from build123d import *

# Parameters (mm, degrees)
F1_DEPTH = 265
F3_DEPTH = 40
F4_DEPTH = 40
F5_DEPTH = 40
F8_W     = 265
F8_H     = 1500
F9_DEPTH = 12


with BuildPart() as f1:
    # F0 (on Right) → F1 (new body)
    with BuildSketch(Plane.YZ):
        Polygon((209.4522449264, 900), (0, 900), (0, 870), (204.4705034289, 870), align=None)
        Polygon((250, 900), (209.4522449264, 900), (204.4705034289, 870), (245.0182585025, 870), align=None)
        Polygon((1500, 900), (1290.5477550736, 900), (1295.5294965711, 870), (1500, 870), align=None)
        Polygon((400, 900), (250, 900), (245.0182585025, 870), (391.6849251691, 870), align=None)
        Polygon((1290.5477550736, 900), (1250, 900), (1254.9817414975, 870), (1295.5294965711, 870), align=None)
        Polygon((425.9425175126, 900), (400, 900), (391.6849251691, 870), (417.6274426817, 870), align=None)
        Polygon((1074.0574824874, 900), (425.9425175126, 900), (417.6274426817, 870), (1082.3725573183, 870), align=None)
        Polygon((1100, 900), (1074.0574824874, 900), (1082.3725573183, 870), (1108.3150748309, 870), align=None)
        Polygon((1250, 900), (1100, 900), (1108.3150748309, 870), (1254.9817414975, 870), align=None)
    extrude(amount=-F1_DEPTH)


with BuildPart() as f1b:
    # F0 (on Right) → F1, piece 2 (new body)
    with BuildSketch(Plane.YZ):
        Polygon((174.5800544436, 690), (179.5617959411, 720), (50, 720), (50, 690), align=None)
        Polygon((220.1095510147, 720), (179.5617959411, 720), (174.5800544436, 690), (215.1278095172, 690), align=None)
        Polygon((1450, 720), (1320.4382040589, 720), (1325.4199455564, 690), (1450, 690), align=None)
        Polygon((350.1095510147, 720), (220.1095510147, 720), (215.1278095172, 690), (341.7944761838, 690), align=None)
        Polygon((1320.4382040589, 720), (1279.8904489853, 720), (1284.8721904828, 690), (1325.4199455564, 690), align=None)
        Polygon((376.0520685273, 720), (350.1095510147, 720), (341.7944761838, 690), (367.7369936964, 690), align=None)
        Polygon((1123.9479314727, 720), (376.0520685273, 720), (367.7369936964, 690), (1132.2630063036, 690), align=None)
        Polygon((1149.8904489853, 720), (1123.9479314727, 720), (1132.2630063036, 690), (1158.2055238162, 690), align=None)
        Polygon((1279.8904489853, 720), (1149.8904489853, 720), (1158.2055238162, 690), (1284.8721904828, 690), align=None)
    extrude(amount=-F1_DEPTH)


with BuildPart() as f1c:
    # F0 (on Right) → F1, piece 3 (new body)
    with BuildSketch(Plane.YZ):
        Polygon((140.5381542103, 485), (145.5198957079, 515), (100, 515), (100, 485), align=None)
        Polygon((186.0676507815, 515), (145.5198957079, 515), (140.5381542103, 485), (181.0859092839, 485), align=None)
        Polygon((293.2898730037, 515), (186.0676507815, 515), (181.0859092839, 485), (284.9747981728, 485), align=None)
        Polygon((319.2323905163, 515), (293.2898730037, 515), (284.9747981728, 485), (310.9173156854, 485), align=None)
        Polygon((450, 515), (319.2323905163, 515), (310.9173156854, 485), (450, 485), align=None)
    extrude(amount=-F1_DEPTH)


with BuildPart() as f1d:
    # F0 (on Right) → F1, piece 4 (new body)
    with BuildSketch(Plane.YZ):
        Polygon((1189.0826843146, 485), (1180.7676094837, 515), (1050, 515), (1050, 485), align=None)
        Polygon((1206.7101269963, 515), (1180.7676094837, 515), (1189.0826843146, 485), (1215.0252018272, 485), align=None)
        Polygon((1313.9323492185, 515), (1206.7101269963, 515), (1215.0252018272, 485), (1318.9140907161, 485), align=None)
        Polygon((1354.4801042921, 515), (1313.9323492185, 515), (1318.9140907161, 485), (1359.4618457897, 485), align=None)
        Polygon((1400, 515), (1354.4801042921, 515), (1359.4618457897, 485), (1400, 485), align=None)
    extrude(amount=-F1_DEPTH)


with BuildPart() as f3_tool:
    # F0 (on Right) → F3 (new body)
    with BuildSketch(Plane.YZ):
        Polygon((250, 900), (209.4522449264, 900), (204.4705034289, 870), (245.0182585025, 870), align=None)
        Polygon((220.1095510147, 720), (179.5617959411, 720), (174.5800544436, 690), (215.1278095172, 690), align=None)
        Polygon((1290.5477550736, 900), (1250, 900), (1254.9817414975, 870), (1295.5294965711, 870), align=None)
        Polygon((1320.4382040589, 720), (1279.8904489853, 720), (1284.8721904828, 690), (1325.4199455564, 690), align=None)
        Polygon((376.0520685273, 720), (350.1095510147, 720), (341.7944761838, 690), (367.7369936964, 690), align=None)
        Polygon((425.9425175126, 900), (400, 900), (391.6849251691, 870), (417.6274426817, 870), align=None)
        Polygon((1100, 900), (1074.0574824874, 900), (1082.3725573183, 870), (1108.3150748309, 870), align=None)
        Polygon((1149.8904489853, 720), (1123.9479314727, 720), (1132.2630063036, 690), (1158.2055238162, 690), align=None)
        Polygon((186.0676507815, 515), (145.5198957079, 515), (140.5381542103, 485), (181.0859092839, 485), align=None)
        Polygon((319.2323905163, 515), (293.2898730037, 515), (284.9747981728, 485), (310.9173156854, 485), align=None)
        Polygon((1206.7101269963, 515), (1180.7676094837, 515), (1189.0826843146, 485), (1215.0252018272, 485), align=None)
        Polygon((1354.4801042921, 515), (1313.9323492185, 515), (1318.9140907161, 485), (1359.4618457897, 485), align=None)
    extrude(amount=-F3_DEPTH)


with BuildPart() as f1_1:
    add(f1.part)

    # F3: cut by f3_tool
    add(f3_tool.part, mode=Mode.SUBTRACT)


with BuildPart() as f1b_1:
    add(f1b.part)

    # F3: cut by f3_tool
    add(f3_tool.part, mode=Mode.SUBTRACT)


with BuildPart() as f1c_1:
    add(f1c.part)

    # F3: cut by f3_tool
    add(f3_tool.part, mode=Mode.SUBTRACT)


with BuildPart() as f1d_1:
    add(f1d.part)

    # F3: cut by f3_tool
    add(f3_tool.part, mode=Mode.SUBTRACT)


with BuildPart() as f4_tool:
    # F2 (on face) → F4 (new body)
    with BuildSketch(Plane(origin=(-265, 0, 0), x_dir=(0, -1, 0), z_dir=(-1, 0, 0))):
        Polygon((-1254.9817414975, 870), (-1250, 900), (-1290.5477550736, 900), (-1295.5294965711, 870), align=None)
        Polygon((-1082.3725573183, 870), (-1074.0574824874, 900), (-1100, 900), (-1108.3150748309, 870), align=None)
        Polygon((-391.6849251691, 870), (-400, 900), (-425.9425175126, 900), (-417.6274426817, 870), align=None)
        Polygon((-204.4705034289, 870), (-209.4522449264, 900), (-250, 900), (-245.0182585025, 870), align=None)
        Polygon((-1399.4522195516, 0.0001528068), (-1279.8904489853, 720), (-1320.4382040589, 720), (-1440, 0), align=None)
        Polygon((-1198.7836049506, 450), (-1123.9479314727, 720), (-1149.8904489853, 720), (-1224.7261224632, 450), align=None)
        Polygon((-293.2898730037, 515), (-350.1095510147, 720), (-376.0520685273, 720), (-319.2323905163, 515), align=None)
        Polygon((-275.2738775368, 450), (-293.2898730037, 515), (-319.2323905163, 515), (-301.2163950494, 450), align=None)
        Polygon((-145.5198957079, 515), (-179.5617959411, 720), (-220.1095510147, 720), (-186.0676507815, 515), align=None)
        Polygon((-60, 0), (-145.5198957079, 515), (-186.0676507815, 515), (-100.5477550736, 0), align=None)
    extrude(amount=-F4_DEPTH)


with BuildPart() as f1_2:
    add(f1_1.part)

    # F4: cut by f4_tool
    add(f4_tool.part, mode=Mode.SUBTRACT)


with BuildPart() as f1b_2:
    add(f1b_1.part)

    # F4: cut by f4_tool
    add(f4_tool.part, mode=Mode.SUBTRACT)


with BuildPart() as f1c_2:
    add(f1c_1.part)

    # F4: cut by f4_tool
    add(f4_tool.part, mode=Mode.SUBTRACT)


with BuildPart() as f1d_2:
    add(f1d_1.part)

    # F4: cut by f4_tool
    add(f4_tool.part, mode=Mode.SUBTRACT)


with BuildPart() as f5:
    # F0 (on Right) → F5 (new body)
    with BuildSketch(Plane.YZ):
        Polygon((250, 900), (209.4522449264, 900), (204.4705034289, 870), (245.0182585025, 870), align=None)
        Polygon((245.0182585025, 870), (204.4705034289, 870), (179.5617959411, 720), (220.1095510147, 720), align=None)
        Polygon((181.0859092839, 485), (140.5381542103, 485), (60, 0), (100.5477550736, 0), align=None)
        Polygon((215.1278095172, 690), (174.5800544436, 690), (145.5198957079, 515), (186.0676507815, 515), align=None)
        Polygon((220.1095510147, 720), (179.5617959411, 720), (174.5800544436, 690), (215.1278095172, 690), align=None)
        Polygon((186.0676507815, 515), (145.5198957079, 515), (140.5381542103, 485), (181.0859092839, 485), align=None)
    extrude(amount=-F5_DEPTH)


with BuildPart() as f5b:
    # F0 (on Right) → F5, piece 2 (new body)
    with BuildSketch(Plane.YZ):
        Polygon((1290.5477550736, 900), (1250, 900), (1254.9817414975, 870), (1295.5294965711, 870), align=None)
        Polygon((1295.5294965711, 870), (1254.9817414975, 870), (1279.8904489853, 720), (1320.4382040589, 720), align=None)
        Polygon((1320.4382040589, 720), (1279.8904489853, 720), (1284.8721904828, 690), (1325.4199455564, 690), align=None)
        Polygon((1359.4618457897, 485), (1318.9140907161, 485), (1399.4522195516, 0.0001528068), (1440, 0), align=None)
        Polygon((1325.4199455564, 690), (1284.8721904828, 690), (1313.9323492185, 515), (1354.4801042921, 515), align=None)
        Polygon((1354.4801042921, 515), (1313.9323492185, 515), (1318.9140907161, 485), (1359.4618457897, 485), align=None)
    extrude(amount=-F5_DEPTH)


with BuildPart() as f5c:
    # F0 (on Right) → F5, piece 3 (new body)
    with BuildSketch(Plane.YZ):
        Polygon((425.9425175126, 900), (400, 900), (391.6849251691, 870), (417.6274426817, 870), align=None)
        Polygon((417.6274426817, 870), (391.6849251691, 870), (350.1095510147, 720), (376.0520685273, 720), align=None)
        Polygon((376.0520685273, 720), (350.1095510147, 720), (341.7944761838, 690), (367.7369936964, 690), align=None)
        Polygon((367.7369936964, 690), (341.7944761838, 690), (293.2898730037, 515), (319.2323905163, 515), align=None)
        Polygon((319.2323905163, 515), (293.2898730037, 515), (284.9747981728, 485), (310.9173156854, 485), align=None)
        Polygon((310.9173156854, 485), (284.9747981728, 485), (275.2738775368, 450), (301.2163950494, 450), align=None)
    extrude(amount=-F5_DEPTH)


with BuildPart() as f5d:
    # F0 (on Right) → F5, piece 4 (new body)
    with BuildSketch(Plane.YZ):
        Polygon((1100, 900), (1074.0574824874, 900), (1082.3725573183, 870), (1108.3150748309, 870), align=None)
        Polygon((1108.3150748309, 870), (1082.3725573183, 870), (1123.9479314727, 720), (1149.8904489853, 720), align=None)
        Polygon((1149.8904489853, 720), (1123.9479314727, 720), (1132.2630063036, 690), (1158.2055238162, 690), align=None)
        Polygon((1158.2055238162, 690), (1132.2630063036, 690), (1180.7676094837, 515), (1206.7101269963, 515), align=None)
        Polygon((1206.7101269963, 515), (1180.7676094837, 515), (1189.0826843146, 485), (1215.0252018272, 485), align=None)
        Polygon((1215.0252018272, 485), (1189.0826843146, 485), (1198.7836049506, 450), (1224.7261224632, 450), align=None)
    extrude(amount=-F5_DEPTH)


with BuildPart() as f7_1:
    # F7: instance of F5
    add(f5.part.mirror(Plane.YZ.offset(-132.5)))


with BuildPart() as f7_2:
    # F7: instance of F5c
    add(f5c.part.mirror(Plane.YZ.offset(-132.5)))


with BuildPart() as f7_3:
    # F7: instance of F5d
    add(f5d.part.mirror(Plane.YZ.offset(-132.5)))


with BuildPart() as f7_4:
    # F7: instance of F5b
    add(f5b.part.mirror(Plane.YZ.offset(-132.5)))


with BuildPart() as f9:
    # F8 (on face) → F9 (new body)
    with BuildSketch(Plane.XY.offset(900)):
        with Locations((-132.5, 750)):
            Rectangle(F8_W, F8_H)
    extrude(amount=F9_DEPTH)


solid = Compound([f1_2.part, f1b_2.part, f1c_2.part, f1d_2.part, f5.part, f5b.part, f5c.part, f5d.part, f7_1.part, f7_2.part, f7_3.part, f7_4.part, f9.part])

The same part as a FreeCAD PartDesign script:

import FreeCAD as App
import Part
import Sketcher
Q = App.Units.Quantity

doc = App.newDocument("Part")
params = doc.addObject("Spreadsheet::Sheet", "Params")
for row, (alias, value) in enumerate([
    ("sketch1_width", "1500 mm"),
    ("sketch1_height", "30 mm"),
    ("pad1_length", "265 mm"),
    ("sketch2_width", "1400 mm"),
    ("sketch2_height", "30 mm"),
    ("pad2_length", "265 mm"),
    ("sketch3_width", "350 mm"),
    ("sketch3_height", "30 mm"),
    ("pad3_length", "265 mm"),
    ("sketch4_width", "350 mm"),
    ("sketch4_height", "30 mm"),
    ("pad4_length", "265 mm"),
    ("pad5_length", "40 mm"),
    ("pad6_length", "40 mm"),
    ("pad7_length", "40 mm"),
    ("pad8_length", "40 mm"),
    ("pad9_length", "40 mm"),
    ("pad10_length", "40 mm"),
    ("sketch11_width", "265 mm"),
    ("sketch11_height", "1500 mm"),
    ("pad11_length", "12 mm"),
], start=1):
    params.set(f"A{row}", alias)
    params.set(f"B{row}", "=" + value)
    params.setAlias(f"B{row}", alias)

body = doc.addObject("PartDesign::Body", "Body")

sketch1 = doc.addObject("Sketcher::SketchObject", "Sketch")
body.addObject(sketch1)
sketch1.AttachmentSupport = (doc.YZ_Plane, [""])
sketch1.MapMode = "FlatFace"
sketch1.addGeometry([
    Part.LineSegment(App.Vector(0, 900, 0), App.Vector(0, 870, 0)),
    Part.LineSegment(App.Vector(0, 870, 0), App.Vector(1500, 870, 0)),
    Part.LineSegment(App.Vector(1500, 870, 0), App.Vector(1500, 900, 0)),
    Part.LineSegment(App.Vector(1500, 900, 0), App.Vector(0, 900, 0)),
], False)
sketch1.addConstraint([
    Sketcher.Constraint("Coincident", 0, 2, 1, 1),
    Sketcher.Constraint("Coincident", 1, 2, 2, 1),
    Sketcher.Constraint("Coincident", 2, 2, 3, 1),
    Sketcher.Constraint("Coincident", 3, 2, 0, 1),
    Sketcher.Constraint("Vertical", 0),
    Sketcher.Constraint("Horizontal", 1),
    Sketcher.Constraint("Vertical", 2),
    Sketcher.Constraint("Horizontal", 3),
    Sketcher.Constraint("PointOnObject", 0, 2, -2),
    Sketcher.Constraint("DistanceX", 1, 1, 1, 2, Q("1500 mm")),
    Sketcher.Constraint("DistanceY", 0, 2, 0, 1, Q("30 mm")),
    Sketcher.Constraint("DistanceY", -1, 1, 0, 2, Q("870 mm")),
])
sketch1.setExpression("Constraints[9]", "Params.sketch1_width")
sketch1.setExpression("Constraints[10]", "Params.sketch1_height")
pad1 = doc.addObject("PartDesign::Pad", "Pad")
body.addObject(pad1)
pad1.Profile = sketch1
pad1.setExpression("Length", "Params.pad1_length")
pad1.Reversed = True
body2 = doc.addObject("PartDesign::Body", "Body001")

sketch2 = doc.addObject("Sketcher::SketchObject", "Sketch001")
body2.addObject(sketch2)
sketch2.AttachmentSupport = (doc.getObject("YZ_Plane001"), [""])
sketch2.MapMode = "FlatFace"
sketch2.addGeometry([
    Part.LineSegment(App.Vector(50, 720, 0), App.Vector(50, 690, 0)),
    Part.LineSegment(App.Vector(50, 690, 0), App.Vector(1450, 690, 0)),
    Part.LineSegment(App.Vector(1450, 690, 0), App.Vector(1450, 720, 0)),
    Part.LineSegment(App.Vector(1450, 720, 0), App.Vector(50, 720, 0)),
], False)
sketch2.addConstraint([
    Sketcher.Constraint("Coincident", 0, 2, 1, 1),
    Sketcher.Constraint("Coincident", 1, 2, 2, 1),
    Sketcher.Constraint("Coincident", 2, 2, 3, 1),
    Sketcher.Constraint("Coincident", 3, 2, 0, 1),
    Sketcher.Constraint("Vertical", 0),
    Sketcher.Constraint("Horizontal", 1),
    Sketcher.Constraint("Vertical", 2),
    Sketcher.Constraint("Horizontal", 3),
    Sketcher.Constraint("DistanceX", 1, 1, 1, 2, Q("1400 mm")),
    Sketcher.Constraint("DistanceY", 0, 2, 0, 1, Q("30 mm")),
    Sketcher.Constraint("DistanceX", -1, 1, 0, 2, Q("50 mm")),
    Sketcher.Constraint("DistanceY", -1, 1, 0, 2, Q("690 mm")),
])
sketch2.setExpression("Constraints[8]", "Params.sketch2_width")
sketch2.setExpression("Constraints[9]", "Params.sketch2_height")
pad2 = doc.addObject("PartDesign::Pad", "Pad001")
body2.addObject(pad2)
pad2.Profile = sketch2
pad2.setExpression("Length", "Params.pad2_length")
pad2.Reversed = True
body3 = doc.addObject("PartDesign::Body", "Body002")

sketch3 = doc.addObject("Sketcher::SketchObject", "Sketch002")
body3.addObject(sketch3)
sketch3.AttachmentSupport = (doc.getObject("YZ_Plane002"), [""])
sketch3.MapMode = "FlatFace"
sketch3.addGeometry([
    Part.LineSegment(App.Vector(100, 515, 0), App.Vector(100, 485, 0)),
    Part.LineSegment(App.Vector(100, 485, 0), App.Vector(450, 485, 0)),
    Part.LineSegment(App.Vector(450, 485, 0), App.Vector(450, 515, 0)),
    Part.LineSegment(App.Vector(450, 515, 0), App.Vector(100, 515, 0)),
], False)
sketch3.addConstraint([
    Sketcher.Constraint("Coincident", 0, 2, 1, 1),
    Sketcher.Constraint("Coincident", 1, 2, 2, 1),
    Sketcher.Constraint("Coincident", 2, 2, 3, 1),
    Sketcher.Constraint("Coincident", 3, 2, 0, 1),
    Sketcher.Constraint("Vertical", 0),
    Sketcher.Constraint("Horizontal", 1),
    Sketcher.Constraint("Vertical", 2),
    Sketcher.Constraint("Horizontal", 3),
    Sketcher.Constraint("DistanceX", 1, 1, 1, 2, Q("350 mm")),
    Sketcher.Constraint("DistanceY", 0, 2, 0, 1, Q("30 mm")),
    Sketcher.Constraint("DistanceX", -1, 1, 0, 2, Q("100 mm")),
    Sketcher.Constraint("DistanceY", -1, 1, 0, 2, Q("485 mm")),
])
sketch3.setExpression("Constraints[8]", "Params.sketch3_width")
sketch3.setExpression("Constraints[9]", "Params.sketch3_height")
pad3 = doc.addObject("PartDesign::Pad", "Pad002")
body3.addObject(pad3)
pad3.Profile = sketch3
pad3.setExpression("Length", "Params.pad3_length")
pad3.Reversed = True
body4 = doc.addObject("PartDesign::Body", "Body003")

sketch4 = doc.addObject("Sketcher::SketchObject", "Sketch003")
body4.addObject(sketch4)
sketch4.AttachmentSupport = (doc.getObject("YZ_Plane003"), [""])
sketch4.MapMode = "FlatFace"
sketch4.addGeometry([
    Part.LineSegment(App.Vector(1050, 515, 0), App.Vector(1050, 485, 0)),
    Part.LineSegment(App.Vector(1050, 485, 0), App.Vector(1400, 485, 0)),
    Part.LineSegment(App.Vector(1400, 485, 0), App.Vector(1400, 515, 0)),
    Part.LineSegment(App.Vector(1400, 515, 0), App.Vector(1050, 515, 0)),
], False)
sketch4.addConstraint([
    Sketcher.Constraint("Coincident", 0, 2, 1, 1),
    Sketcher.Constraint("Coincident", 1, 2, 2, 1),
    Sketcher.Constraint("Coincident", 2, 2, 3, 1),
    Sketcher.Constraint("Coincident", 3, 2, 0, 1),
    Sketcher.Constraint("Vertical", 0),
    Sketcher.Constraint("Horizontal", 1),
    Sketcher.Constraint("Vertical", 2),
    Sketcher.Constraint("Horizontal", 3),
    Sketcher.Constraint("DistanceX", 1, 1, 1, 2, Q("350 mm")),
    Sketcher.Constraint("DistanceY", 0, 2, 0, 1, Q("30 mm")),
    Sketcher.Constraint("DistanceX", -1, 1, 0, 2, Q("1050 mm")),
    Sketcher.Constraint("DistanceY", -1, 1, 0, 2, Q("485 mm")),
])
sketch4.setExpression("Constraints[8]", "Params.sketch4_width")
sketch4.setExpression("Constraints[9]", "Params.sketch4_height")
pad4 = doc.addObject("PartDesign::Pad", "Pad003")
body4.addObject(pad4)
pad4.Profile = sketch4
pad4.setExpression("Length", "Params.pad4_length")
pad4.Reversed = True
body5 = doc.addObject("PartDesign::Body", "Body004")
body5.AllowCompound = True

sketch5 = doc.addObject("Sketcher::SketchObject", "Sketch004")
body5.addObject(sketch5)
sketch5.AttachmentSupport = (doc.getObject("YZ_Plane004"), [""])
sketch5.MapMode = "FlatFace"
sketch5.addGeometry([
    Part.LineSegment(App.Vector(250, 900, 0), App.Vector(209.452245, 900, 0)),
    Part.LineSegment(App.Vector(209.452245, 900, 0), App.Vector(204.470503, 870, 0)),
    Part.LineSegment(App.Vector(204.470503, 870, 0), App.Vector(245.018259, 870, 0)),
    Part.LineSegment(App.Vector(245.018259, 870, 0), App.Vector(250, 900, 0)),
    Part.LineSegment(App.Vector(220.109551, 720, 0), App.Vector(179.561796, 720, 0)),
    Part.LineSegment(App.Vector(179.561796, 720, 0), App.Vector(174.580054, 690, 0)),
    Part.LineSegment(App.Vector(174.580054, 690, 0), App.Vector(215.12781, 690, 0)),
    Part.LineSegment(App.Vector(215.12781, 690, 0), App.Vector(220.109551, 720, 0)),
    Part.LineSegment(App.Vector(1290.547755, 900, 0), App.Vector(1250, 900, 0)),
    Part.LineSegment(App.Vector(1250, 900, 0), App.Vector(1254.981741, 870, 0)),
    Part.LineSegment(App.Vector(1254.981741, 870, 0), App.Vector(1295.529497, 870, 0)),
    Part.LineSegment(App.Vector(1295.529497, 870, 0), App.Vector(1290.547755, 900, 0)),
    Part.LineSegment(App.Vector(1320.438204, 720, 0), App.Vector(1279.890449, 720, 0)),
    Part.LineSegment(App.Vector(1279.890449, 720, 0), App.Vector(1284.87219, 690, 0)),
    Part.LineSegment(App.Vector(1284.87219, 690, 0), App.Vector(1325.419946, 690, 0)),
    Part.LineSegment(App.Vector(1325.419946, 690, 0), App.Vector(1320.438204, 720, 0)),
    Part.LineSegment(App.Vector(376.052069, 720, 0), App.Vector(350.109551, 720, 0)),
    Part.LineSegment(App.Vector(350.109551, 720, 0), App.Vector(341.794476, 690, 0)),
    Part.LineSegment(App.Vector(341.794476, 690, 0), App.Vector(367.736994, 690, 0)),
    Part.LineSegment(App.Vector(367.736994, 690, 0), App.Vector(376.052069, 720, 0)),
    Part.LineSegment(App.Vector(425.942518, 900, 0), App.Vector(400, 900, 0)),
    Part.LineSegment(App.Vector(400, 900, 0), App.Vector(391.684925, 870, 0)),
    Part.LineSegment(App.Vector(391.684925, 870, 0), App.Vector(417.627443, 870, 0)),
    Part.LineSegment(App.Vector(417.627443, 870, 0), App.Vector(425.942518, 900, 0)),
    Part.LineSegment(App.Vector(1100, 900, 0), App.Vector(1074.057482, 900, 0)),
    Part.LineSegment(App.Vector(1074.057482, 900, 0), App.Vector(1082.372557, 870, 0)),
    Part.LineSegment(App.Vector(1082.372557, 870, 0), App.Vector(1108.315075, 870, 0)),
    Part.LineSegment(App.Vector(1108.315075, 870, 0), App.Vector(1100, 900, 0)),
    Part.LineSegment(App.Vector(1149.890449, 720, 0), App.Vector(1123.947931, 720, 0)),
    Part.LineSegment(App.Vector(1123.947931, 720, 0), App.Vector(1132.263006, 690, 0)),
    Part.LineSegment(App.Vector(1132.263006, 690, 0), App.Vector(1158.205524, 690, 0)),
    Part.LineSegment(App.Vector(1158.205524, 690, 0), App.Vector(1149.890449, 720, 0)),
    Part.LineSegment(App.Vector(186.067651, 515, 0), App.Vector(145.519896, 515, 0)),
    Part.LineSegment(App.Vector(145.519896, 515, 0), App.Vector(140.538154, 485, 0)),
    Part.LineSegment(App.Vector(140.538154, 485, 0), App.Vector(181.085909, 485, 0)),
    Part.LineSegment(App.Vector(181.085909, 485, 0), App.Vector(186.067651, 515, 0)),
    Part.LineSegment(App.Vector(319.232391, 515, 0), App.Vector(293.289873, 515, 0)),
    Part.LineSegment(App.Vector(293.289873, 515, 0), App.Vector(284.974798, 485, 0)),
    Part.LineSegment(App.Vector(284.974798, 485, 0), App.Vector(310.917316, 485, 0)),
    Part.LineSegment(App.Vector(310.917316, 485, 0), App.Vector(319.232391, 515, 0)),
    Part.LineSegment(App.Vector(1206.710127, 515, 0), App.Vector(1180.767609, 515, 0)),
    Part.LineSegment(App.Vector(1180.767609, 515, 0), App.Vector(1189.082684, 485, 0)),
    Part.LineSegment(App.Vector(1189.082684, 485, 0), App.Vector(1215.025202, 485, 0)),
    Part.LineSegment(App.Vector(1215.025202, 485, 0), App.Vector(1206.710127, 515, 0)),
    Part.LineSegment(App.Vector(1354.480104, 515, 0), App.Vector(1313.932349, 515, 0)),
    Part.LineSegment(App.Vector(1313.932349, 515, 0), App.Vector(1318.914091, 485, 0)),
    Part.LineSegment(App.Vector(1318.914091, 485, 0), App.Vector(1359.461846, 485, 0)),
    Part.LineSegment(App.Vector(1359.461846, 485, 0), App.Vector(1354.480104, 515, 0)),
], False)
sketch5.addConstraint([
    Sketcher.Constraint("Coincident", 0, 2, 1, 1),
    Sketcher.Constraint("Coincident", 1, 2, 2, 1),
    Sketcher.Constraint("Coincident", 2, 2, 3, 1),
    Sketcher.Constraint("Coincident", 3, 2, 0, 1),
    Sketcher.Constraint("Coincident", 4, 2, 5, 1),
    Sketcher.Constraint("Coincident", 5, 2, 6, 1),
    Sketcher.Constraint("Coincident", 6, 2, 7, 1),
    Sketcher.Constraint("Coincident", 7, 2, 4, 1),
    Sketcher.Constraint("Coincident", 8, 2, 9, 1),
    Sketcher.Constraint("Coincident", 9, 2, 10, 1),
    Sketcher.Constraint("Coincident", 10, 2, 11, 1),
    Sketcher.Constraint("Coincident", 11, 2, 8, 1),
    Sketcher.Constraint("Coincident", 12, 2, 13, 1),
    Sketcher.Constraint("Coincident", 13, 2, 14, 1),
    Sketcher.Constraint("Coincident", 14, 2, 15, 1),
    Sketcher.Constraint("Coincident", 15, 2, 12, 1),
    Sketcher.Constraint("Coincident", 16, 2, 17, 1),
    Sketcher.Constraint("Coincident", 17, 2, 18, 1),
    Sketcher.Constraint("Coincident", 18, 2, 19, 1),
    Sketcher.Constraint("Coincident", 19, 2, 16, 1),
    Sketcher.Constraint("Coincident", 20, 2, 21, 1),
    Sketcher.Constraint("Coincident", 21, 2, 22, 1),
    Sketcher.Constraint("Coincident", 22, 2, 23, 1),
    Sketcher.Constraint("Coincident", 23, 2, 20, 1),
    Sketcher.Constraint("Coincident", 24, 2, 25, 1),
    Sketcher.Constraint("Coincident", 25, 2, 26, 1),
    Sketcher.Constraint("Coincident", 26, 2, 27, 1),
    Sketcher.Constraint("Coincident", 27, 2, 24, 1),
    Sketcher.Constraint("Coincident", 28, 2, 29, 1),
    Sketcher.Constraint("Coincident", 29, 2, 30, 1),
    Sketcher.Constraint("Coincident", 30, 2, 31, 1),
    Sketcher.Constraint("Coincident", 31, 2, 28, 1),
    Sketcher.Constraint("Coincident", 32, 2, 33, 1),
    Sketcher.Constraint("Coincident", 33, 2, 34, 1),
    Sketcher.Constraint("Coincident", 34, 2, 35, 1),
    Sketcher.Constraint("Coincident", 35, 2, 32, 1),
    Sketcher.Constraint("Coincident", 36, 2, 37, 1),
    Sketcher.Constraint("Coincident", 37, 2, 38, 1),
    Sketcher.Constraint("Coincident", 38, 2, 39, 1),
    Sketcher.Constraint("Coincident", 39, 2, 36, 1),
    Sketcher.Constraint("Coincident", 40, 2, 41, 1),
    Sketcher.Constraint("Coincident", 41, 2, 42, 1),
    Sketcher.Constraint("Coincident", 42, 2, 43, 1),
    Sketcher.Constraint("Coincident", 43, 2, 40, 1),
    Sketcher.Constraint("Coincident", 44, 2, 45, 1),
    Sketcher.Constraint("Coincident", 45, 2, 46, 1),
    Sketcher.Constraint("Coincident", 46, 2, 47, 1),
    Sketcher.Constraint("Coincident", 47, 2, 44, 1),
    Sketcher.Constraint("Horizontal", 0),
    Sketcher.Constraint("Horizontal", 2),
    Sketcher.Constraint("Horizontal", 4),
    Sketcher.Constraint("Horizontal", 6),
    Sketcher.Constraint("Horizontal", 8),
    Sketcher.Constraint("Horizontal", 10),
    Sketcher.Constraint("Horizontal", 12),
    Sketcher.Constraint("Horizontal", 14),
    Sketcher.Constraint("Horizontal", 16),
    Sketcher.Constraint("Horizontal", 18),
    Sketcher.Constraint("Horizontal", 20),
    Sketcher.Constraint("Horizontal", 22),
    Sketcher.Constraint("Horizontal", 24),
    Sketcher.Constraint("Horizontal", 26),
    Sketcher.Constraint("Horizontal", 28),
    Sketcher.Constraint("Horizontal", 30),
    Sketcher.Constraint("Horizontal", 32),
    Sketcher.Constraint("Horizontal", 34),
    Sketcher.Constraint("Horizontal", 36),
    Sketcher.Constraint("Horizontal", 38),
    Sketcher.Constraint("Horizontal", 40),
    Sketcher.Constraint("Horizontal", 42),
    Sketcher.Constraint("Horizontal", 44),
    Sketcher.Constraint("Horizontal", 46),
    Sketcher.Constraint("Parallel", 1, 3),
    Sketcher.Constraint("Parallel", 3, 5),
    Sketcher.Constraint("Parallel", 5, 7),
    Sketcher.Constraint("Parallel", 9, 11),
    Sketcher.Constraint("Parallel", 11, 13),
    Sketcher.Constraint("Parallel", 13, 15),
    Sketcher.Constraint("Parallel", 17, 19),
    Sketcher.Constraint("Parallel", 19, 21),
    Sketcher.Constraint("Parallel", 21, 23),
    Sketcher.Constraint("Parallel", 25, 27),
    Sketcher.Constraint("Parallel", 27, 29),
    Sketcher.Constraint("Parallel", 29, 31),
    Sketcher.Constraint("Parallel", 7, 33),
    Sketcher.Constraint("Parallel", 33, 35),
    Sketcher.Constraint("Parallel", 23, 37),
    Sketcher.Constraint("Parallel", 37, 39),
    Sketcher.Constraint("Parallel", 31, 41),
    Sketcher.Constraint("Parallel", 41, 43),
    Sketcher.Constraint("Parallel", 15, 45),
    Sketcher.Constraint("Parallel", 45, 47),
    Sketcher.Constraint("Horizontal", 3, 2, 8, 2),
    Sketcher.Constraint("Horizontal", 2, 2, 9, 2),
    Sketcher.Constraint("Horizontal", 7, 2, 12, 2),
    Sketcher.Constraint("Horizontal", 6, 2, 13, 2),
    Sketcher.Constraint("Horizontal", 15, 2, 16, 2),
    Sketcher.Constraint("Horizontal", 14, 2, 17, 2),
    Sketcher.Constraint("Horizontal", 11, 2, 20, 2),
    Sketcher.Constraint("Horizontal", 10, 2, 21, 2),
    Sketcher.Constraint("Horizontal", 23, 2, 24, 2),
    Sketcher.Constraint("Horizontal", 22, 2, 25, 2),
    Sketcher.Constraint("Horizontal", 19, 2, 28, 2),
    Sketcher.Constraint("Horizontal", 18, 2, 29, 2),
    Sketcher.Constraint("Horizontal", 35, 2, 36, 2),
    Sketcher.Constraint("Horizontal", 34, 2, 37, 2),
    Sketcher.Constraint("Horizontal", 39, 2, 40, 2),
    Sketcher.Constraint("Horizontal", 38, 2, 41, 2),
    Sketcher.Constraint("Horizontal", 43, 2, 44, 2),
    Sketcher.Constraint("Horizontal", 42, 2, 45, 2),
    Sketcher.Constraint("Equal", 2, 4),
    Sketcher.Constraint("Equal", 6, 8),
    Sketcher.Constraint("Equal", 10, 12),
    Sketcher.Constraint("Equal", 18, 20),
    Sketcher.Constraint("Equal", 22, 24),
    Sketcher.Constraint("Equal", 26, 28),
    Sketcher.Constraint("Equal", 14, 32),
    Sketcher.Constraint("Equal", 30, 36),
    Sketcher.Constraint("Equal", 38, 40),
    Sketcher.Constraint("Equal", 34, 44),
    Sketcher.Constraint("Equal", 3, 5),
    Sketcher.Constraint("Equal", 7, 9),
    Sketcher.Constraint("Equal", 23, 25),
    Sketcher.Constraint("Equal", 15, 33),
    Sketcher.Constraint("DistanceY", -1, 1, 0, 2, Q("900 mm")),
    Sketcher.Constraint("DistanceY", -1, 1, 1, 2, Q("870 mm")),
    Sketcher.Constraint("DistanceX", -1, 1, 3, 2, Q("250 mm")),
    Sketcher.Constraint("DistanceY", -1, 1, 4, 2, Q("720 mm")),
    Sketcher.Constraint("DistanceX", -1, 1, 8, 2, Q("1250 mm")),
    Sketcher.Constraint("DistanceX", -1, 1, 20, 2, Q("400 mm")),
    Sketcher.Constraint("DistanceX", -1, 1, 27, 2, Q("1100 mm")),
    Sketcher.Constraint("DistanceY", -1, 1, 32, 2, Q("515 mm")),
    Sketcher.Constraint("DistanceX", 7, 2, 16, 2, Q("130 mm")),
    Sketcher.Constraint("DistanceX", 31, 2, 12, 2, Q("130 mm")),
    Sketcher.Constraint("DistanceX", -1, 1, 37, 2, Q("284.974798 mm")),
    Sketcher.Constraint("DistanceX", -1, 1, 42, 2, Q("1215.025202 mm")),
    Sketcher.Constraint("DistanceX", 32, 2, 4, 2, Q("34.0419 mm")),
    Sketcher.Constraint("Distance", 17, Q("31.131021 mm")),
    Sketcher.Constraint("DistanceX", 0, 2, 0, 1, Q("40.547755 mm")),
    Sketcher.Constraint("DistanceX", 16, 2, 16, 1, Q("25.942518 mm")),
    Sketcher.Constraint("DistanceX", -1, 1, 2, 2, Q("245.018259 mm")),
    Sketcher.Constraint("DistanceX", -1, 1, 6, 2, Q("215.12781 mm")),
    Sketcher.Constraint("DistanceX", -1, 1, 12, 2, Q("1279.890449 mm")),
    Sketcher.Constraint("DistanceX", -1, 1, 44, 2, Q("1313.932349 mm")),
])
pad5 = doc.addObject("PartDesign::Pad", "Pad004")
body5.addObject(pad5)
pad5.Profile = sketch5
pad5.setExpression("Length", "Params.pad5_length")
pad5.Reversed = True
doc.recompute()

body6 = doc.addObject("PartDesign::Body", "Body005")
body6.BaseFeature = body5
boolean = doc.addObject("PartDesign::Boolean", "Boolean")
body.addObject(boolean)
boolean.Type = "Cut"
boolean.addObjects([body6])
doc.recompute()

body7 = doc.addObject("PartDesign::Body", "Body006")
body7.BaseFeature = body5
boolean2 = doc.addObject("PartDesign::Boolean", "Boolean001")
body2.addObject(boolean2)
boolean2.Type = "Cut"
boolean2.addObjects([body7])
doc.recompute()

body8 = doc.addObject("PartDesign::Body", "Body007")
body8.BaseFeature = body5
boolean3 = doc.addObject("PartDesign::Boolean", "Boolean002")
body3.addObject(boolean3)
boolean3.Type = "Cut"
boolean3.addObjects([body8])
doc.recompute()

boolean4 = doc.addObject("PartDesign::Boolean", "Boolean003")
body4.addObject(boolean4)
boolean4.Type = "Cut"
boolean4.addObjects([body5])
body9 = doc.addObject("PartDesign::Body", "Body008")
body9.AllowCompound = True

sketch6 = doc.addObject("Sketcher::SketchObject", "Sketch005")
body9.addObject(sketch6)
sketch6.AttachmentSupport = (doc.getObject("YZ_Plane008"), [""])
sketch6.MapMode = "FlatFace"
sketch6.AttachmentOffset = App.Placement(App.Vector(0, 0, -265), App.Rotation())
sketch6.addGeometry([
    Part.LineSegment(App.Vector(1254.981741, 870, 0), App.Vector(1250, 900, 0)),
    Part.LineSegment(App.Vector(1250, 900, 0), App.Vector(1290.547755, 900, 0)),
    Part.LineSegment(App.Vector(1290.547755, 900, 0), App.Vector(1295.529497, 870, 0)),
    Part.LineSegment(App.Vector(1295.529497, 870, 0), App.Vector(1254.981741, 870, 0)),
    Part.LineSegment(App.Vector(1082.372557, 870, 0), App.Vector(1074.057482, 900, 0)),
    Part.LineSegment(App.Vector(1074.057482, 900, 0), App.Vector(1100, 900, 0)),
    Part.LineSegment(App.Vector(1100, 900, 0), App.Vector(1108.315075, 870, 0)),
    Part.LineSegment(App.Vector(1108.315075, 870, 0), App.Vector(1082.372557, 870, 0)),
    Part.LineSegment(App.Vector(391.684925, 870, 0), App.Vector(400, 900, 0)),
    Part.LineSegment(App.Vector(400, 900, 0), App.Vector(425.942518, 900, 0)),
    Part.LineSegment(App.Vector(425.942518, 900, 0), App.Vector(417.627443, 870, 0)),
    Part.LineSegment(App.Vector(417.627443, 870, 0), App.Vector(391.684925, 870, 0)),
    Part.LineSegment(App.Vector(204.470503, 870, 0), App.Vector(209.452245, 900, 0)),
    Part.LineSegment(App.Vector(209.452245, 900, 0), App.Vector(250, 900, 0)),
    Part.LineSegment(App.Vector(250, 900, 0), App.Vector(245.018259, 870, 0)),
    Part.LineSegment(App.Vector(245.018259, 870, 0), App.Vector(204.470503, 870, 0)),
    Part.LineSegment(App.Vector(1399.45222, 0.000153, 0), App.Vector(1279.890449, 720, 0)),
    Part.LineSegment(App.Vector(1279.890449, 720, 0), App.Vector(1320.438204, 720, 0)),
    Part.LineSegment(App.Vector(1320.438204, 720, 0), App.Vector(1440, 0, 0)),
    Part.LineSegment(App.Vector(1440, 0, 0), App.Vector(1399.45222, 0.000153, 0)),
    Part.LineSegment(App.Vector(1198.783605, 450, 0), App.Vector(1123.947931, 720, 0)),
    Part.LineSegment(App.Vector(1123.947931, 720, 0), App.Vector(1149.890449, 720, 0)),
    Part.LineSegment(App.Vector(1149.890449, 720, 0), App.Vector(1224.726122, 450, 0)),
    Part.LineSegment(App.Vector(1224.726122, 450, 0), App.Vector(1198.783605, 450, 0)),
    Part.LineSegment(App.Vector(350.109551, 720, 0), App.Vector(376.052069, 720, 0)),
    Part.LineSegment(App.Vector(376.052069, 720, 0), App.Vector(301.216395, 450, 0)),
    Part.LineSegment(App.Vector(301.216395, 450, 0), App.Vector(275.273878, 450, 0)),
    Part.LineSegment(App.Vector(275.273878, 450, 0), App.Vector(350.109551, 720, 0)),
    Part.LineSegment(App.Vector(179.561796, 720, 0), App.Vector(220.109551, 720, 0)),
    Part.LineSegment(App.Vector(220.109551, 720, 0), App.Vector(100.547755, 0, 0)),
    Part.LineSegment(App.Vector(100.547755, 0, 0), App.Vector(60, 0, 0)),
    Part.LineSegment(App.Vector(60, 0, 0), App.Vector(179.561796, 720, 0)),
], False)
sketch6.addConstraint([
    Sketcher.Constraint("Coincident", 0, 2, 1, 1),
    Sketcher.Constraint("Coincident", 1, 2, 2, 1),
    Sketcher.Constraint("Coincident", 2, 2, 3, 1),
    Sketcher.Constraint("Coincident", 3, 2, 0, 1),
    Sketcher.Constraint("Coincident", 4, 2, 5, 1),
    Sketcher.Constraint("Coincident", 5, 2, 6, 1),
    Sketcher.Constraint("Coincident", 6, 2, 7, 1),
    Sketcher.Constraint("Coincident", 7, 2, 4, 1),
    Sketcher.Constraint("Coincident", 8, 2, 9, 1),
    Sketcher.Constraint("Coincident", 9, 2, 10, 1),
    Sketcher.Constraint("Coincident", 10, 2, 11, 1),
    Sketcher.Constraint("Coincident", 11, 2, 8, 1),
    Sketcher.Constraint("Coincident", 12, 2, 13, 1),
    Sketcher.Constraint("Coincident", 13, 2, 14, 1),
    Sketcher.Constraint("Coincident", 14, 2, 15, 1),
    Sketcher.Constraint("Coincident", 15, 2, 12, 1),
    Sketcher.Constraint("Coincident", 16, 2, 17, 1),
    Sketcher.Constraint("Coincident", 17, 2, 18, 1),
    Sketcher.Constraint("Coincident", 18, 2, 19, 1),
    Sketcher.Constraint("Coincident", 19, 2, 16, 1),
    Sketcher.Constraint("Coincident", 20, 2, 21, 1),
    Sketcher.Constraint("Coincident", 21, 2, 22, 1),
    Sketcher.Constraint("Coincident", 22, 2, 23, 1),
    Sketcher.Constraint("Coincident", 23, 2, 20, 1),
    Sketcher.Constraint("Coincident", 24, 2, 25, 1),
    Sketcher.Constraint("Coincident", 25, 2, 26, 1),
    Sketcher.Constraint("Coincident", 26, 2, 27, 1),
    Sketcher.Constraint("Coincident", 27, 2, 24, 1),
    Sketcher.Constraint("Coincident", 28, 2, 29, 1),
    Sketcher.Constraint("Coincident", 29, 2, 30, 1),
    Sketcher.Constraint("Coincident", 30, 2, 31, 1),
    Sketcher.Constraint("Coincident", 31, 2, 28, 1),
    Sketcher.Constraint("Horizontal", 1),
    Sketcher.Constraint("Horizontal", 3),
    Sketcher.Constraint("Horizontal", 5),
    Sketcher.Constraint("Horizontal", 7),
    Sketcher.Constraint("Horizontal", 9),
    Sketcher.Constraint("Horizontal", 11),
    Sketcher.Constraint("Horizontal", 13),
    Sketcher.Constraint("Horizontal", 15),
    Sketcher.Constraint("Horizontal", 17),
    Sketcher.Constraint("Horizontal", 21),
    Sketcher.Constraint("Horizontal", 23),
    Sketcher.Constraint("Horizontal", 24),
    Sketcher.Constraint("Horizontal", 26),
    Sketcher.Constraint("Horizontal", 28),
    Sketcher.Constraint("Horizontal", 30),
    Sketcher.Constraint("PointOnObject", 18, 2, -1),
    Sketcher.Constraint("PointOnObject", 29, 2, -1),
    Sketcher.Constraint("Parallel", 0, 2),
    Sketcher.Constraint("Parallel", 4, 6),
    Sketcher.Constraint("Parallel", 8, 10),
    Sketcher.Constraint("Parallel", 12, 14),
    Sketcher.Constraint("Parallel", 2, 16),
    Sketcher.Constraint("Parallel", 16, 18),
    Sketcher.Constraint("Parallel", 6, 20),
    Sketcher.Constraint("Parallel", 20, 22),
    Sketcher.Constraint("Parallel", 10, 25),
    Sketcher.Constraint("Parallel", 25, 27),
    Sketcher.Constraint("Parallel", 14, 29),
    Sketcher.Constraint("Parallel", 29, 31),
    Sketcher.Constraint("Horizontal", 1, 2, 4, 2),
    Sketcher.Constraint("Horizontal", 3, 2, 6, 2),
    Sketcher.Constraint("Horizontal", 5, 2, 8, 2),
    Sketcher.Constraint("Horizontal", 7, 2, 10, 2),
    Sketcher.Constraint("Horizontal", 9, 2, 12, 2),
    Sketcher.Constraint("Horizontal", 11, 2, 14, 2),
    Sketcher.Constraint("Horizontal", 17, 2, 20, 2),
    Sketcher.Constraint("Horizontal", 21, 2, 24, 2),
    Sketcher.Constraint("Horizontal", 23, 2, 25, 2),
    Sketcher.Constraint("Horizontal", 27, 2, 28, 2),
    Sketcher.Constraint("Equal", 7, 9),
    Sketcher.Constraint("Equal", 3, 13),
    Sketcher.Constraint("Equal", 15, 17),
    Sketcher.Constraint("Equal", 11, 21),
    Sketcher.Constraint("Equal", 23, 24),
    Sketcher.Constraint("Equal", 17, 28),
    Sketcher.Constraint("Equal", 6, 8),
    Sketcher.Constraint("Equal", 2, 12),
    Sketcher.Constraint("DistanceX", -1, 1, 0, 2, Q("1250 mm")),
    Sketcher.Constraint("DistanceY", -1, 1, 0, 2, Q("900 mm")),
    Sketcher.Constraint("DistanceY", -1, 1, 2, 2, Q("870 mm")),
    Sketcher.Constraint("DistanceX", -1, 1, 5, 2, Q("1100 mm")),
    Sketcher.Constraint("DistanceX", -1, 1, 8, 2, Q("400 mm")),
    Sketcher.Constraint("DistanceX", -1, 1, 13, 2, Q("250 mm")),
    Sketcher.Constraint("DistanceY", -1, 1, 16, 2, Q("720 mm")),
    Sketcher.Constraint("DistanceX", -1, 1, 18, 2, Q("1440 mm")),
    Sketcher.Constraint("DistanceY", -1, 1, 22, 2, Q("450 mm")),
    Sketcher.Constraint("DistanceX", -1, 1, 30, 2, Q("60 mm")),
    Sketcher.Constraint("DistanceX", 21, 2, 16, 2, Q("130 mm")),
    Sketcher.Constraint("DistanceX", 28, 2, 27, 2, Q("130 mm")),
    Sketcher.Constraint("DistanceX", 23, 2, 17, 2, Q("121.654599 mm")),
    Sketcher.Constraint("Distance", 4, Q("31.131021 mm")),
    Sketcher.Constraint("Distance", 18, Q("729.859591 mm")),
    Sketcher.Constraint("Distance", 19, Q("40.54778 mm")),
    Sketcher.Constraint("DistanceX", 1, 1, 1, 2, Q("40.547755 mm")),
])
pad6 = doc.addObject("PartDesign::Pad", "Pad005")
body9.addObject(pad6)
pad6.Profile = sketch6
pad6.setExpression("Length", "Params.pad6_length")
doc.recompute()

body10 = doc.addObject("PartDesign::Body", "Body009")
body10.BaseFeature = body9
boolean5 = doc.addObject("PartDesign::Boolean", "Boolean004")
body.addObject(boolean5)
boolean5.Type = "Cut"
boolean5.addObjects([body10])
doc.recompute()

body11 = doc.addObject("PartDesign::Body", "Body010")
body11.BaseFeature = body9
boolean6 = doc.addObject("PartDesign::Boolean", "Boolean005")
body2.addObject(boolean6)
boolean6.Type = "Cut"
boolean6.addObjects([body11])
doc.recompute()

body12 = doc.addObject("PartDesign::Body", "Body011")
body12.BaseFeature = body9
boolean7 = doc.addObject("PartDesign::Boolean", "Boolean006")
body3.addObject(boolean7)
boolean7.Type = "Cut"
boolean7.addObjects([body12])
doc.recompute()

boolean8 = doc.addObject("PartDesign::Boolean", "Boolean007")
body4.addObject(boolean8)
boolean8.Type = "Cut"
boolean8.addObjects([body9])
body13 = doc.addObject("PartDesign::Body", "Body012")

sketch7 = doc.addObject("Sketcher::SketchObject", "Sketch006")
body13.addObject(sketch7)
sketch7.AttachmentSupport = (doc.getObject("YZ_Plane012"), [""])
sketch7.MapMode = "FlatFace"
sketch7.addGeometry([
    Part.LineSegment(App.Vector(250, 900, 0), App.Vector(209.452245, 900, 0)),
    Part.LineSegment(App.Vector(209.452245, 900, 0), App.Vector(204.470503, 870, 0)),
    Part.LineSegment(App.Vector(204.470503, 870, 0), App.Vector(179.561796, 720, 0)),
    Part.LineSegment(App.Vector(179.561796, 720, 0), App.Vector(174.580054, 690, 0)),
    Part.LineSegment(App.Vector(174.580054, 690, 0), App.Vector(145.519896, 515, 0)),
    Part.LineSegment(App.Vector(145.519896, 515, 0), App.Vector(140.538154, 485, 0)),
    Part.LineSegment(App.Vector(140.538154, 485, 0), App.Vector(60, 0, 0)),
    Part.LineSegment(App.Vector(60, 0, 0), App.Vector(100.547755, 0, 0)),
    Part.LineSegment(App.Vector(100.547755, 0, 0), App.Vector(181.085909, 485, 0)),
    Part.LineSegment(App.Vector(181.085909, 485, 0), App.Vector(186.067651, 515, 0)),
    Part.LineSegment(App.Vector(186.067651, 515, 0), App.Vector(215.12781, 690, 0)),
    Part.LineSegment(App.Vector(215.12781, 690, 0), App.Vector(220.109551, 720, 0)),
    Part.LineSegment(App.Vector(220.109551, 720, 0), App.Vector(245.018259, 870, 0)),
    Part.LineSegment(App.Vector(245.018259, 870, 0), App.Vector(250, 900, 0)),
], False)
sketch7.addConstraint([
    Sketcher.Constraint("Coincident", 0, 2, 1, 1),
    Sketcher.Constraint("Coincident", 1, 2, 2, 1),
    Sketcher.Constraint("Coincident", 2, 2, 3, 1),
    Sketcher.Constraint("Coincident", 3, 2, 4, 1),
    Sketcher.Constraint("Coincident", 4, 2, 5, 1),
    Sketcher.Constraint("Coincident", 5, 2, 6, 1),
    Sketcher.Constraint("Coincident", 6, 2, 7, 1),
    Sketcher.Constraint("Coincident", 7, 2, 8, 1),
    Sketcher.Constraint("Coincident", 8, 2, 9, 1),
    Sketcher.Constraint("Coincident", 9, 2, 10, 1),
    Sketcher.Constraint("Coincident", 10, 2, 11, 1),
    Sketcher.Constraint("Coincident", 11, 2, 12, 1),
    Sketcher.Constraint("Coincident", 12, 2, 13, 1),
    Sketcher.Constraint("Coincident", 13, 2, 0, 1),
    Sketcher.Constraint("Horizontal", 0),
    Sketcher.Constraint("Horizontal", 7),
    Sketcher.Constraint("PointOnObject", 6, 2, -1),
    Sketcher.Constraint("Parallel", 1, 2),
    Sketcher.Constraint("Parallel", 2, 3),
    Sketcher.Constraint("Parallel", 3, 4),
    Sketcher.Constraint("Parallel", 4, 5),
    Sketcher.Constraint("Parallel", 5, 6),
    Sketcher.Constraint("Parallel", 6, 8),
    Sketcher.Constraint("Parallel", 8, 9),
    Sketcher.Constraint("Parallel", 9, 10),
    Sketcher.Constraint("Parallel", 10, 11),
    Sketcher.Constraint("Parallel", 11, 12),
    Sketcher.Constraint("Parallel", 12, 13),
    Sketcher.Constraint("Horizontal", 5, 2, 8, 2),
    Sketcher.Constraint("Horizontal", 4, 2, 9, 2),
    Sketcher.Constraint("Horizontal", 3, 2, 10, 2),
    Sketcher.Constraint("Horizontal", 2, 2, 11, 2),
    Sketcher.Constraint("Horizontal", 1, 2, 12, 2),
    Sketcher.Constraint("Equal", 1, 3),
    Sketcher.Constraint("Equal", 3, 5),
    Sketcher.Constraint("DistanceY", -1, 1, 0, 2, Q("900 mm")),
    Sketcher.Constraint("DistanceY", -1, 1, 1, 2, Q("870 mm")),
    Sketcher.Constraint("DistanceY", -1, 1, 2, 2, Q("720 mm")),
    Sketcher.Constraint("DistanceY", -1, 1, 4, 2, Q("515 mm")),
    Sketcher.Constraint("DistanceX", -1, 1, 6, 2, Q("60 mm")),
    Sketcher.Constraint("DistanceX", -1, 1, 13, 2, Q("250 mm")),
    Sketcher.Constraint("DistanceX", 4, 2, 2, 2, Q("34.0419 mm")),
])
pad7 = doc.addObject("PartDesign::Pad", "Pad006")
body13.addObject(pad7)
pad7.Profile = sketch7
pad7.setExpression("Length", "Params.pad7_length")
pad7.Reversed = True
body14 = doc.addObject("PartDesign::Body", "Body013")

sketch8 = doc.addObject("Sketcher::SketchObject", "Sketch007")
body14.addObject(sketch8)
sketch8.AttachmentSupport = (doc.getObject("YZ_Plane013"), [""])
sketch8.MapMode = "FlatFace"
sketch8.addGeometry([
    Part.LineSegment(App.Vector(1290.547755, 900, 0), App.Vector(1250, 900, 0)),
    Part.LineSegment(App.Vector(1250, 900, 0), App.Vector(1254.981741, 870, 0)),
    Part.LineSegment(App.Vector(1254.981741, 870, 0), App.Vector(1279.890449, 720, 0)),
    Part.LineSegment(App.Vector(1279.890449, 720, 0), App.Vector(1284.87219, 690, 0)),
    Part.LineSegment(App.Vector(1284.87219, 690, 0), App.Vector(1313.932349, 515, 0)),
    Part.LineSegment(App.Vector(1313.932349, 515, 0), App.Vector(1318.914091, 485, 0)),
    Part.LineSegment(App.Vector(1318.914091, 485, 0), App.Vector(1399.45222, 0.000153, 0)),
    Part.LineSegment(App.Vector(1399.45222, 0.000153, 0), App.Vector(1440, 0, 0)),
    Part.LineSegment(App.Vector(1440, 0, 0), App.Vector(1359.461846, 485, 0)),
    Part.LineSegment(App.Vector(1359.461846, 485, 0), App.Vector(1354.480104, 515, 0)),
    Part.LineSegment(App.Vector(1354.480104, 515, 0), App.Vector(1325.419946, 690, 0)),
    Part.LineSegment(App.Vector(1325.419946, 690, 0), App.Vector(1320.438204, 720, 0)),
    Part.LineSegment(App.Vector(1320.438204, 720, 0), App.Vector(1295.529497, 870, 0)),
    Part.LineSegment(App.Vector(1295.529497, 870, 0), App.Vector(1290.547755, 900, 0)),
], False)
sketch8.addConstraint([
    Sketcher.Constraint("Coincident", 0, 2, 1, 1),
    Sketcher.Constraint("Coincident", 1, 2, 2, 1),
    Sketcher.Constraint("Coincident", 2, 2, 3, 1),
    Sketcher.Constraint("Coincident", 3, 2, 4, 1),
    Sketcher.Constraint("Coincident", 4, 2, 5, 1),
    Sketcher.Constraint("Coincident", 5, 2, 6, 1),
    Sketcher.Constraint("Coincident", 6, 2, 7, 1),
    Sketcher.Constraint("Coincident", 7, 2, 8, 1),
    Sketcher.Constraint("Coincident", 8, 2, 9, 1),
    Sketcher.Constraint("Coincident", 9, 2, 10, 1),
    Sketcher.Constraint("Coincident", 10, 2, 11, 1),
    Sketcher.Constraint("Coincident", 11, 2, 12, 1),
    Sketcher.Constraint("Coincident", 12, 2, 13, 1),
    Sketcher.Constraint("Coincident", 13, 2, 0, 1),
    Sketcher.Constraint("Horizontal", 0),
    Sketcher.Constraint("PointOnObject", 7, 2, -1),
    Sketcher.Constraint("Parallel", 1, 2),
    Sketcher.Constraint("Parallel", 2, 3),
    Sketcher.Constraint("Parallel", 3, 4),
    Sketcher.Constraint("Parallel", 4, 5),
    Sketcher.Constraint("Parallel", 5, 6),
    Sketcher.Constraint("Parallel", 6, 8),
    Sketcher.Constraint("Parallel", 8, 9),
    Sketcher.Constraint("Parallel", 9, 10),
    Sketcher.Constraint("Parallel", 10, 11),
    Sketcher.Constraint("Parallel", 11, 12),
    Sketcher.Constraint("Parallel", 12, 13),
    Sketcher.Constraint("Horizontal", 5, 2, 8, 2),
    Sketcher.Constraint("Horizontal", 4, 2, 9, 2),
    Sketcher.Constraint("Horizontal", 3, 2, 10, 2),
    Sketcher.Constraint("Horizontal", 2, 2, 11, 2),
    Sketcher.Constraint("Horizontal", 1, 2, 12, 2),
    Sketcher.Constraint("Equal", 1, 3),
    Sketcher.Constraint("Equal", 3, 5),
    Sketcher.Constraint("DistanceX", -1, 1, 0, 2, Q("1250 mm")),
    Sketcher.Constraint("DistanceY", -1, 1, 0, 2, Q("900 mm")),
    Sketcher.Constraint("DistanceY", -1, 1, 1, 2, Q("870 mm")),
    Sketcher.Constraint("DistanceY", -1, 1, 2, 2, Q("720 mm")),
    Sketcher.Constraint("DistanceY", -1, 1, 4, 2, Q("515 mm")),
    Sketcher.Constraint("DistanceX", -1, 1, 7, 2, Q("1440 mm")),
    Sketcher.Constraint("DistanceX", 2, 2, 4, 2, Q("34.0419 mm")),
    Sketcher.Constraint("Distance", 7, Q("40.54778 mm")),
])
pad8 = doc.addObject("PartDesign::Pad", "Pad007")
body14.addObject(pad8)
pad8.Profile = sketch8
pad8.setExpression("Length", "Params.pad8_length")
pad8.Reversed = True
body15 = doc.addObject("PartDesign::Body", "Body014")

sketch9 = doc.addObject("Sketcher::SketchObject", "Sketch008")
body15.addObject(sketch9)
sketch9.AttachmentSupport = (doc.getObject("YZ_Plane014"), [""])
sketch9.MapMode = "FlatFace"
sketch9.addGeometry([
    Part.LineSegment(App.Vector(425.942518, 900, 0), App.Vector(400, 900, 0)),
    Part.LineSegment(App.Vector(400, 900, 0), App.Vector(275.273878, 450, 0)),
    Part.LineSegment(App.Vector(275.273878, 450, 0), App.Vector(301.216395, 450, 0)),
    Part.LineSegment(App.Vector(301.216395, 450, 0), App.Vector(425.942518, 900, 0)),
], False)
sketch9.addConstraint([
    Sketcher.Constraint("Coincident", 0, 2, 1, 1),
    Sketcher.Constraint("Coincident", 1, 2, 2, 1),
    Sketcher.Constraint("Coincident", 2, 2, 3, 1),
    Sketcher.Constraint("Coincident", 3, 2, 0, 1),
    Sketcher.Constraint("Horizontal", 0),
    Sketcher.Constraint("Horizontal", 2),
    Sketcher.Constraint("Parallel", 1, 3),
    Sketcher.Constraint("DistanceX", -1, 1, 0, 2, Q("400 mm")),
    Sketcher.Constraint("DistanceY", -1, 1, 0, 2, Q("900 mm")),
    Sketcher.Constraint("DistanceY", -1, 1, 1, 2, Q("450 mm")),
    Sketcher.Constraint("DistanceX", 0, 2, 0, 1, Q("25.942518 mm")),
    Sketcher.Constraint("DistanceX", 1, 2, 3, 2, Q("150.66864 mm")),
])
pad9 = doc.addObject("PartDesign::Pad", "Pad008")
body15.addObject(pad9)
pad9.Profile = sketch9
pad9.setExpression("Length", "Params.pad9_length")
pad9.Reversed = True
body16 = doc.addObject("PartDesign::Body", "Body015")

sketch10 = doc.addObject("Sketcher::SketchObject", "Sketch009")
body16.addObject(sketch10)
sketch10.AttachmentSupport = (doc.getObject("YZ_Plane015"), [""])
sketch10.MapMode = "FlatFace"
sketch10.addGeometry([
    Part.LineSegment(App.Vector(1100, 900, 0), App.Vector(1074.057482, 900, 0)),
    Part.LineSegment(App.Vector(1074.057482, 900, 0), App.Vector(1198.783605, 450, 0)),
    Part.LineSegment(App.Vector(1198.783605, 450, 0), App.Vector(1224.726122, 450, 0)),
    Part.LineSegment(App.Vector(1224.726122, 450, 0), App.Vector(1100, 900, 0)),
], False)
sketch10.addConstraint([
    Sketcher.Constraint("Coincident", 0, 2, 1, 1),
    Sketcher.Constraint("Coincident", 1, 2, 2, 1),
    Sketcher.Constraint("Coincident", 2, 2, 3, 1),
    Sketcher.Constraint("Coincident", 3, 2, 0, 1),
    Sketcher.Constraint("Horizontal", 0),
    Sketcher.Constraint("Horizontal", 2),
    Sketcher.Constraint("Parallel", 1, 3),
    Sketcher.Constraint("DistanceY", -1, 1, 0, 2, Q("900 mm")),
    Sketcher.Constraint("DistanceY", -1, 1, 1, 2, Q("450 mm")),
    Sketcher.Constraint("DistanceX", -1, 1, 3, 2, Q("1100 mm")),
    Sketcher.Constraint("DistanceX", 0, 2, 0, 1, Q("25.942518 mm")),
    Sketcher.Constraint("DistanceX", 0, 2, 2, 2, Q("150.66864 mm")),
])
pad10 = doc.addObject("PartDesign::Pad", "Pad009")
body16.addObject(pad10)
pad10.Profile = sketch10
pad10.setExpression("Length", "Params.pad10_length")
pad10.Reversed = True
body17 = doc.addObject("PartDesign::Body", "Body016")
doc.recompute()

mirroring = doc.addObject("Part::Mirroring", "Mirroring")
mirroring.Source = body13
mirroring.Base = App.Vector(-132.5, 0, 0)
mirroring.Normal = App.Vector(1, 0, 0)
body17.BaseFeature = mirroring
doc.recompute()
body18 = doc.addObject("PartDesign::Body", "Body017")
doc.recompute()

mirroring2 = doc.addObject("Part::Mirroring", "Mirroring001")
mirroring2.Source = body15
mirroring2.Base = App.Vector(-132.5, 0, 0)
mirroring2.Normal = App.Vector(1, 0, 0)
body18.BaseFeature = mirroring2
doc.recompute()
body19 = doc.addObject("PartDesign::Body", "Body018")
doc.recompute()

mirroring3 = doc.addObject("Part::Mirroring", "Mirroring002")
mirroring3.Source = body16
mirroring3.Base = App.Vector(-132.5, 0, 0)
mirroring3.Normal = App.Vector(1, 0, 0)
body19.BaseFeature = mirroring3
doc.recompute()
body20 = doc.addObject("PartDesign::Body", "Body019")
doc.recompute()

mirroring4 = doc.addObject("Part::Mirroring", "Mirroring003")
mirroring4.Source = body14
mirroring4.Base = App.Vector(-132.5, 0, 0)
mirroring4.Normal = App.Vector(1, 0, 0)
body20.BaseFeature = mirroring4
doc.recompute()
body21 = doc.addObject("PartDesign::Body", "Body020")

sketch11 = doc.addObject("Sketcher::SketchObject", "Sketch010")
body21.addObject(sketch11)
sketch11.AttachmentSupport = (doc.getObject("XY_Plane020"), [""])
sketch11.MapMode = "FlatFace"
sketch11.AttachmentOffset = App.Placement(App.Vector(0, 0, 900), App.Rotation())
sketch11.addGeometry([
    Part.LineSegment(App.Vector(-265, 1500, 0), App.Vector(-265, 0, 0)),
    Part.LineSegment(App.Vector(-265, 0, 0), App.Vector(0, 0, 0)),
    Part.LineSegment(App.Vector(0, 0, 0), App.Vector(0, 1500, 0)),
    Part.LineSegment(App.Vector(0, 1500, 0), App.Vector(-265, 1500, 0)),
], False)
sketch11.addConstraint([
    Sketcher.Constraint("Coincident", 0, 2, 1, 1),
    Sketcher.Constraint("Coincident", 1, 2, 2, 1),
    Sketcher.Constraint("Coincident", 2, 2, 3, 1),
    Sketcher.Constraint("Coincident", 3, 2, 0, 1),
    Sketcher.Constraint("Vertical", 0),
    Sketcher.Constraint("Horizontal", 1),
    Sketcher.Constraint("Vertical", 2),
    Sketcher.Constraint("Horizontal", 3),
    Sketcher.Constraint("Coincident", 1, 2, -1, 1),
    Sketcher.Constraint("DistanceX", 1, 1, 1, 2, Q("265 mm")),
    Sketcher.Constraint("DistanceY", 0, 2, 0, 1, Q("1500 mm")),
])
sketch11.setExpression("Constraints[9]", "Params.sketch11_width")
sketch11.setExpression("Constraints[10]", "Params.sketch11_height")
pad11 = doc.addObject("PartDesign::Pad", "Pad010")
body21.addObject(pad11)
pad11.Profile = sketch11
pad11.setExpression("Length", "Params.pad11_length")
mirroring.Visibility = False
mirroring2.Visibility = False
mirroring3.Visibility = False
mirroring4.Visibility = False

doc.recompute()
